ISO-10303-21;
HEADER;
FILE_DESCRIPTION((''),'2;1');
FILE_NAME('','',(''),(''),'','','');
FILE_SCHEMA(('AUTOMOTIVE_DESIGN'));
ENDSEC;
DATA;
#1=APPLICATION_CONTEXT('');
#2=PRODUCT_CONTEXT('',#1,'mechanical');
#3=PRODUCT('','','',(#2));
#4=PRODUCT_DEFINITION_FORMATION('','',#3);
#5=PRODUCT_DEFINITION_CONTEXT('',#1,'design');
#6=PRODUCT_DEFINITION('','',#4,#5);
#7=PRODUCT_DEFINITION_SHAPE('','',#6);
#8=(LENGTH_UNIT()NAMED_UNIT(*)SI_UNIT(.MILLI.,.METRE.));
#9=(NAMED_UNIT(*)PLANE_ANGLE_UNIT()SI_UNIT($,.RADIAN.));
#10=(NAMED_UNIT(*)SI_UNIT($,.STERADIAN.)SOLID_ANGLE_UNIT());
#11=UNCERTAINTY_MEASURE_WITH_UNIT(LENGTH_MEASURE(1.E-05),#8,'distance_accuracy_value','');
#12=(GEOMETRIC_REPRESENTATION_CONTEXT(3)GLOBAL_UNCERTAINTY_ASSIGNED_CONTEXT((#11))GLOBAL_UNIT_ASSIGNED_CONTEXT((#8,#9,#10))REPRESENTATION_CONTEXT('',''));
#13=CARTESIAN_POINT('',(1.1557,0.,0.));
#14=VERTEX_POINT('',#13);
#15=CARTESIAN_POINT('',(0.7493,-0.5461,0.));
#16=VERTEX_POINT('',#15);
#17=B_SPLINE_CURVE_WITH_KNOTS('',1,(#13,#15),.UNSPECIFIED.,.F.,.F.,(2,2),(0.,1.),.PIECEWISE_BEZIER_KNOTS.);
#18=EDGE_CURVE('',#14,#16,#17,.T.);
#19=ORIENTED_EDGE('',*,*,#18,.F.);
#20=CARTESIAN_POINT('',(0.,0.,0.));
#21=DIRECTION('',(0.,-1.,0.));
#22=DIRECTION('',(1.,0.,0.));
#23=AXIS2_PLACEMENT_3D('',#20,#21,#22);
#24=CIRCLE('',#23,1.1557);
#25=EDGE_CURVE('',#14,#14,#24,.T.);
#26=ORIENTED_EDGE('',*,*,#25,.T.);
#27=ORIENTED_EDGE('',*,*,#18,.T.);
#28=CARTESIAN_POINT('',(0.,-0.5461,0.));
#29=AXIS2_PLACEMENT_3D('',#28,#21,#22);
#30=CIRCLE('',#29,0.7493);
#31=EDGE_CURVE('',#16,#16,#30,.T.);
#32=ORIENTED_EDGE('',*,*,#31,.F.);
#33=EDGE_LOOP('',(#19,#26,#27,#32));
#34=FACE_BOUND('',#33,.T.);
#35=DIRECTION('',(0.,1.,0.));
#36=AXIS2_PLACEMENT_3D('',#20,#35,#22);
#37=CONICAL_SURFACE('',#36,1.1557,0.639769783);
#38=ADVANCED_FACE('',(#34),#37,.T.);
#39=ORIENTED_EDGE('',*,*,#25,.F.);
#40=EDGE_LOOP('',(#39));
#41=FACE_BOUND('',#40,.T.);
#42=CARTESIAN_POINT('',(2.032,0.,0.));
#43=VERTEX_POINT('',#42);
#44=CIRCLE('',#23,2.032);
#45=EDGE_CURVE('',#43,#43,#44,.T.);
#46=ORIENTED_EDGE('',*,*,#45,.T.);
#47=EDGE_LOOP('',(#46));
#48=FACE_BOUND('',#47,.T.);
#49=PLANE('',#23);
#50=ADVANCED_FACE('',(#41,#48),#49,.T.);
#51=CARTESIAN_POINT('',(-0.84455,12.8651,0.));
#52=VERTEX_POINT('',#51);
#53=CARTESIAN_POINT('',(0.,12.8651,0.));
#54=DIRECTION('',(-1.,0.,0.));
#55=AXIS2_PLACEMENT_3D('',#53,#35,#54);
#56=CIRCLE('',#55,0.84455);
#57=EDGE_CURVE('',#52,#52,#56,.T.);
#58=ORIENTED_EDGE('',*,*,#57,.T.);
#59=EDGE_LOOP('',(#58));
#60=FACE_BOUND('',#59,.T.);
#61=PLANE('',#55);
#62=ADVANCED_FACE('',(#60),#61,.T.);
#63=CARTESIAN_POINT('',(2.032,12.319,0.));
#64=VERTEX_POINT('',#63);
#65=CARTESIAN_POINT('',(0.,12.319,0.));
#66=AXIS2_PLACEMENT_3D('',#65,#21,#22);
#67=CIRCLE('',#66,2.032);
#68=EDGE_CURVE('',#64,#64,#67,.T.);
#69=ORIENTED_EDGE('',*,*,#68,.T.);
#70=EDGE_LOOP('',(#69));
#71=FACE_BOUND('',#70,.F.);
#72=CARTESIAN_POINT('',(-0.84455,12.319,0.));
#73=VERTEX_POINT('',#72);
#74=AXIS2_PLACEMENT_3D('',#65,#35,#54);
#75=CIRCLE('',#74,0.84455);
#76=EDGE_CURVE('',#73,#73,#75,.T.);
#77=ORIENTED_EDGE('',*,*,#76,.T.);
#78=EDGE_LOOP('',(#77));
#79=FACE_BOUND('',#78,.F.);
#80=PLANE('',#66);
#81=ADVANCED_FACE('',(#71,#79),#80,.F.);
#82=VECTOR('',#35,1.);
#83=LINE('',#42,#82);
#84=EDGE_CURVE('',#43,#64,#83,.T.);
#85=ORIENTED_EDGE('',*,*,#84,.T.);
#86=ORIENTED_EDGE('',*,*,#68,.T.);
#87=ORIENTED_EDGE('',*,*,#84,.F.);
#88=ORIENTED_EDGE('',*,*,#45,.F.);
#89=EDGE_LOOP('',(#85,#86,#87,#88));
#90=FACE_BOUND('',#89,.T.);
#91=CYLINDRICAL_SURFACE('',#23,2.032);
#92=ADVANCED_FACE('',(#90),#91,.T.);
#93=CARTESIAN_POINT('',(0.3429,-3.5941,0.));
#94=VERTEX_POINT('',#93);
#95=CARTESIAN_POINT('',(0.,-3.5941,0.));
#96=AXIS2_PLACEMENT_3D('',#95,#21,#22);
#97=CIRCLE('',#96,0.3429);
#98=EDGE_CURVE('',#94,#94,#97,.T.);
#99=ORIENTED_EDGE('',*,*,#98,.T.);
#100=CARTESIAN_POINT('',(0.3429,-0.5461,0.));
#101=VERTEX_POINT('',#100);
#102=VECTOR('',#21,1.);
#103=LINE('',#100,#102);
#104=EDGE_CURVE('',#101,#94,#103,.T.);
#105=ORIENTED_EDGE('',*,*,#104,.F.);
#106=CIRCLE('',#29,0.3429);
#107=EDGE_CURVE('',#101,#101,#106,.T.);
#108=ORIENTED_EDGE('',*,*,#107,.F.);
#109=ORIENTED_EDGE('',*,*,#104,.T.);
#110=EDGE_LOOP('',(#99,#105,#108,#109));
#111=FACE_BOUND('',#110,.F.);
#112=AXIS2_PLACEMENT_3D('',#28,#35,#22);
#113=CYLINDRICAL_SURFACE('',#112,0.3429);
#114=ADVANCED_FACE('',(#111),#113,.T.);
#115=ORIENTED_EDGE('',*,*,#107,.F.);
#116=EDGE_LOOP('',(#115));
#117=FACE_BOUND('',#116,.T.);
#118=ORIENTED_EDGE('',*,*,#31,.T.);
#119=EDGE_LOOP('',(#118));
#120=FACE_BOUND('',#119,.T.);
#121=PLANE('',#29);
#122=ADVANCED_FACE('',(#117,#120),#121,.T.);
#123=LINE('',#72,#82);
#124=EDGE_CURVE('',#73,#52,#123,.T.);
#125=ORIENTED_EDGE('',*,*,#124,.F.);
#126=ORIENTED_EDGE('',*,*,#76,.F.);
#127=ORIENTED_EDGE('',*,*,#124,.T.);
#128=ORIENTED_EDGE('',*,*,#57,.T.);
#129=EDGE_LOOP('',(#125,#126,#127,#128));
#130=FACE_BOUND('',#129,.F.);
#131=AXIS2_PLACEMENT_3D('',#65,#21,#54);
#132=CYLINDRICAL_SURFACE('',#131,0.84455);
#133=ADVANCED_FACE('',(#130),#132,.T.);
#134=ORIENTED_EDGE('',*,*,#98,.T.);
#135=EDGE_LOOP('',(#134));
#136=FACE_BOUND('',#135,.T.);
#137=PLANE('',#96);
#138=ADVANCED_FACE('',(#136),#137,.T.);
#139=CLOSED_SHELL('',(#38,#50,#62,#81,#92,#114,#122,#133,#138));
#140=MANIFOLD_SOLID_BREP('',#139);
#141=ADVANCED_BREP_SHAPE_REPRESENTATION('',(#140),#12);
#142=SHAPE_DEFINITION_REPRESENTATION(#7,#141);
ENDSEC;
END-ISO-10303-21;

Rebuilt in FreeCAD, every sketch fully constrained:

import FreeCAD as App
import Part
import Sketcher

V = App.Vector
Q = App.Units.Quantity

doc = App.newDocument("Part")
body = doc.addObject("PartDesign::Body", "Body")

# Sketch on XZ plane
sketch1 = doc.addObject("Sketcher::SketchObject", "Sketch")
body.addObject(sketch1)
sketch1.AttachmentSupport = (doc.XZ_Plane, [""])
sketch1.MapMode = "FlatFace"
sketch1.addGeometry(Part.Circle(V(0, 0, 0), V(0, 0, 1), 2.032), False)
sketch1.addConstraint([
    Sketcher.Constraint("Coincident", 0, 3, -1, 1),
    Sketcher.Constraint("Diameter", 0, Q("0.16 in")),
])
pad1 = doc.addObject("PartDesign::Pad", "Pad")
body.addObject(pad1)
pad1.Profile = sketch1
pad1.Length = Q("0.485 in")
pad1.Reversed = True

# Sketch on XZ plane
sketch2 = doc.addObject("Sketcher::SketchObject", "Sketch001")
body.addObject(sketch2)
sketch2.AttachmentSupport = (doc.XZ_Plane, [""])
sketch2.MapMode = "FlatFace"
sketch2.AttachmentOffset = App.Placement(V(0, 0, -0.485 * 25.4), App.Rotation())
sketch2.addGeometry(Part.Circle(V(0, 0, 0), V(0, 0, 1), 0.84455), False)
sketch2.addConstraint([
    Sketcher.Constraint("Coincident", 0, 3, -1, 1),
    Sketcher.Constraint("Diameter", 0, Q("0.0665 in")),
])
pad2 = doc.addObject("PartDesign::Pad", "Pad001")
body.addObject(pad2)
pad2.Profile = sketch2
pad2.Length = Q("0.0215 in")
pad2.Reversed = True

# Sketch on XZ plane
sketch3 = doc.addObject("Sketcher::SketchObject", "Sketch002")
body.addObject(sketch3)
sketch3.AttachmentSupport = (doc.XZ_Plane, [""])
sketch3.MapMode = "FlatFace"
sketch3.addGeometry(Part.Circle(V(0, 0, 0), V(0, 0, 1), 1.1557), False)
sketch3.addConstraint([
    Sketcher.Constraint("Coincident", 0, 3, -1, 1),
    Sketcher.Constraint("Diameter", 0, Q("0.091 in")),
])

# Sketch on XZ plane
sketch4 = doc.addObject("Sketcher::SketchObject", "Sketch003")
body.addObject(sketch4)
sketch4.AttachmentSupport = (doc.XZ_Plane, [""])
sketch4.MapMode = "FlatFace"
sketch4.AttachmentOffset = App.Placement(V(0, 0, 0.0215 * 25.4), App.Rotation())
sketch4.addGeometry(Part.Circle(V(0, 0, 0), V(0, 0, 1), 0.7493), False)
sketch4.addConstraint([
    Sketcher.Constraint("Coincident", 0, 3, -1, 1),
    Sketcher.Constraint("Diameter", 0, Q("0.059 in")),
])

additiveloft = doc.addObject("PartDesign::AdditiveLoft", "AdditiveLoft")
body.addObject(additiveloft)
additiveloft.Profile = sketch3
additiveloft.Sections = [sketch4]

# Sketch on XZ plane
sketch5 = doc.addObject("Sketcher::SketchObject", "Sketch004")
body.addObject(sketch5)
sketch5.AttachmentSupport = (doc.XZ_Plane, [""])
sketch5.MapMode = "FlatFace"
sketch5.AttachmentOffset = App.Placement(V(0, 0, 0.0215 * 25.4), App.Rotation())
sketch5.addGeometry(Part.Circle(V(0, 0, 0), V(0, 0, 1), 0.3429), False)
sketch5.addConstraint([
    Sketcher.Constraint("Coincident", 0, 3, -1, 1),
    Sketcher.Constraint("Diameter", 0, Q("0.027 in")),
])
pad3 = doc.addObject("PartDesign::Pad", "Pad002")
body.addObject(pad3)
pad3.Profile = sketch5
pad3.Length = Q("0.12 in")

doc.recompute()
